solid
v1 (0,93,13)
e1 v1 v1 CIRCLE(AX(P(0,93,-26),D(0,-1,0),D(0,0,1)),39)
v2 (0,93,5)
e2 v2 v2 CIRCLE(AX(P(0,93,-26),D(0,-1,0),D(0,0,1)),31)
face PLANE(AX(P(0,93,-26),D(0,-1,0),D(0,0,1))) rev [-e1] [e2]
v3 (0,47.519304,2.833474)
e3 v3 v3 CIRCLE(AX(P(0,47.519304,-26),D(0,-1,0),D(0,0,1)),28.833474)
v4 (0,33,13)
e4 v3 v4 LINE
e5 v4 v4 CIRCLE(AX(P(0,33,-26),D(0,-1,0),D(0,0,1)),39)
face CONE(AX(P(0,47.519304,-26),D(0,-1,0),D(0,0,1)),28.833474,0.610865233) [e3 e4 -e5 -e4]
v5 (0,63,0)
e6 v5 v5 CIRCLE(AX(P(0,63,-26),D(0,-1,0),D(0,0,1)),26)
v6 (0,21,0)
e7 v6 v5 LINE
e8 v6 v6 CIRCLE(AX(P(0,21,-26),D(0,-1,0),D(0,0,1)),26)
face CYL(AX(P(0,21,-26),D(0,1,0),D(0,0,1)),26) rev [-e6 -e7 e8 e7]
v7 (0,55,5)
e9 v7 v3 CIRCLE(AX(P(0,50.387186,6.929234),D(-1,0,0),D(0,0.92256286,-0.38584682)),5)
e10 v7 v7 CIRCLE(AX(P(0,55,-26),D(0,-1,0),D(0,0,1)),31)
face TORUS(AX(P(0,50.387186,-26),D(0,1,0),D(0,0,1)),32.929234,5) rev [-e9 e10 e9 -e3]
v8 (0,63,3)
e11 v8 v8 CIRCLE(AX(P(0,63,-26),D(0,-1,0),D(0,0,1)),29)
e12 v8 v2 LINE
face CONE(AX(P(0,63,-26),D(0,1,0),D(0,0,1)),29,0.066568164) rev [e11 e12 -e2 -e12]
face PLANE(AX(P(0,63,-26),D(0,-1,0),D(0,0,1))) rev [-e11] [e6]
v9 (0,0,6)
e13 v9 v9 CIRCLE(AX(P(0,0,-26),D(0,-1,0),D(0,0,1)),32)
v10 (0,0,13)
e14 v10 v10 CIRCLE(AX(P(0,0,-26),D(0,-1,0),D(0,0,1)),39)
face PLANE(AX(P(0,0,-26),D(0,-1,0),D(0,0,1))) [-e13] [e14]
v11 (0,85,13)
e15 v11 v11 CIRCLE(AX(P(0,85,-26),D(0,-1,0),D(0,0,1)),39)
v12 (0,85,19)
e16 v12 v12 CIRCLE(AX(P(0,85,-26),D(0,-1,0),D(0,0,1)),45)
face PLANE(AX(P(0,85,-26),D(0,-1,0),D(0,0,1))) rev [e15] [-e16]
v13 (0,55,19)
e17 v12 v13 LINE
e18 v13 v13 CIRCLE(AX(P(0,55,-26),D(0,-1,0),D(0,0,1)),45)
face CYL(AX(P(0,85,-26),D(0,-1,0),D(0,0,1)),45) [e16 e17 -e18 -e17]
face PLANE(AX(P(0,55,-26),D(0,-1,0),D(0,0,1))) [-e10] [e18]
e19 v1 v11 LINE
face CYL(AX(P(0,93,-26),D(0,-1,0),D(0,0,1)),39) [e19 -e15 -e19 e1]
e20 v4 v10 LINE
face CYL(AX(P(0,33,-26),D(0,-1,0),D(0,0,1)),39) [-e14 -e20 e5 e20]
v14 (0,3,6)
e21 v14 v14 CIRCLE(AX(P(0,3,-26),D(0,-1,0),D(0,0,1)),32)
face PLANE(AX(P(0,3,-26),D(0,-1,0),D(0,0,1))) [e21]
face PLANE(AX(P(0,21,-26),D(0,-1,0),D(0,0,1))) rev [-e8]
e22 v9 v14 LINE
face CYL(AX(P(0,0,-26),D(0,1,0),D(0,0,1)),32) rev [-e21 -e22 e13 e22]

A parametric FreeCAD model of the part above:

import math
import FreeCAD as App
import Part
import Sketcher
Q = App.Units.Quantity

doc = App.newDocument("Part")
body = doc.addObject("PartDesign::Body", "Body")

# Sketch on YZ plane
sketch1 = body.newObject("Sketcher::SketchObject", "Sketch")
sketch1.AttachmentSupport = (doc.getObject("YZ_Plane"), [""])
sketch1.MapMode = "FlatFace"
sketch1.addGeometry([
    Part.LineSegment(App.Vector(33, 13, 0), App.Vector(0, 13, 0)),  # 0
    Part.LineSegment(App.Vector(0, 13, 0), App.Vector(0, 6, 0)),  # 1
    Part.LineSegment(App.Vector(0, 6, 0), App.Vector(3, 6, 0)),  # 2
    Part.LineSegment(App.Vector(3, 6, 0), App.Vector(3, -26, 0)),  # 3
    Part.LineSegment(App.Vector(3, -26, 0), App.Vector(21, -26, 0)),  # 4
    Part.LineSegment(App.Vector(21, -26, 0), App.Vector(21, 0, 0)),  # 5
    Part.LineSegment(App.Vector(21, 0, 0), App.Vector(63, 0, 0)),  # 6
    Part.LineSegment(App.Vector(63, 0, 0), App.Vector(63, 3, 0)),  # 7
    Part.LineSegment(App.Vector(63, 3, 0), App.Vector(93, 5, 0)),  # 8
    Part.LineSegment(App.Vector(93, 5, 0), App.Vector(93, 13, 0)),  # 9
    Part.LineSegment(App.Vector(93, 13, 0), App.Vector(85, 13, 0)),  # 10
    Part.LineSegment(App.Vector(85, 13, 0), App.Vector(85, 19, 0)),  # 11
    Part.LineSegment(App.Vector(85, 19, 0), App.Vector(55, 19, 0)),  # 12
    Part.LineSegment(App.Vector(55, 19, 0), App.Vector(55, 5, 0)),  # 13
    Part.ArcOfCircle(Part.Circle(App.Vector(50.4, 6.9, 0), App.Vector(0, 0, 1), 5), math.radians(-125), math.radians(-23)),  # 14
    Part.LineSegment(App.Vector(47.5, 2.8, 0), App.Vector(33, 13, 0)),  # 15
], False)
sketch1.addGeometry(Part.LineSegment(App.Vector(93, -26, 0), App.Vector(0, -26, 0)), True)  # axis
sketch1.addConstraint([
    Sketcher.Constraint("Coincident", 0, 2, 1, 1),
    Sketcher.Constraint("Coincident", 1, 2, 2, 1),
    Sketcher.Constraint("Coincident", 2, 2, 3, 1),
    Sketcher.Constraint("Coincident", 3, 2, 4, 1),
    Sketcher.Constraint("Coincident", 4, 2, 5, 1),
    Sketcher.Constraint("Coincident", 5, 2, 6, 1),
    Sketcher.Constraint("Coincident", 6, 2, 7, 1),
    Sketcher.Constraint("Coincident", 7, 2, 8, 1),
    Sketcher.Constraint("Coincident", 8, 2, 9, 1),
    Sketcher.Constraint("Coincident", 9, 2, 10, 1),
    Sketcher.Constraint("Coincident", 10, 2, 11, 1),
    Sketcher.Constraint("Coincident", 11, 2, 12, 1),
    Sketcher.Constraint("Coincident", 12, 2, 13, 1),
    Sketcher.Constraint("Coincident", 13, 2, 14, 2),
    Sketcher.Constraint("Tangent", 14, 1, 15, 1),
    Sketcher.Constraint("Coincident", 15, 2, 0, 1),
    Sketcher.Constraint("Horizontal", 0),
    Sketcher.Constraint("Vertical", 1),
    Sketcher.Constraint("Horizontal", 2),
    Sketcher.Constraint("Vertical", 3),
    Sketcher.Constraint("Horizontal", 4),
    Sketcher.Constraint("Vertical", 5),
    Sketcher.Constraint("Horizontal", 6),
    Sketcher.Constraint("Vertical", 7),
    Sketcher.Constraint("Vertical", 9),
    Sketcher.Constraint("Horizontal", 10),
    Sketcher.Constraint("Vertical", 11),
    Sketcher.Constraint("Horizontal", 12),
    Sketcher.Constraint("Vertical", 13),
    Sketcher.Constraint("Horizontal", 16),
    Sketcher.Constraint("PointOnObject", 0, 2, -2),
    Sketcher.Constraint("PointOnObject", 5, 2, -1),
    Sketcher.Constraint("PointOnObject", 16, 2, -2),
    Sketcher.Constraint("Horizontal", 0, 2, 9, 2),
    Sketcher.Constraint("Horizontal", 8, 2, 13, 2),
    Sketcher.Constraint("Horizontal", 4, 2, 16, 1),
    Sketcher.Constraint("Vertical", 9, 2, 16, 1),
    Sketcher.Constraint("Equal", 2, 7),
    Sketcher.Constraint("Equal", 10, 9),
    Sketcher.Constraint("Radius", 14, Q("5 mm")),
    Sketcher.Constraint("DistanceX", 0, 2, 0, 1, Q("33 mm")),
    Sketcher.Constraint("DistanceX", 2, 1, 2, 2, Q("3 mm")),
    Sketcher.Constraint("DistanceX", 4, 1, 4, 2, Q("18 mm")),
    Sketcher.Constraint("DistanceX", 6, 1, 6, 2, Q("42 mm")),
    Sketcher.Constraint("DistanceX", 10, 2, 10, 1, Q("8 mm")),
    Sketcher.Constraint("DistanceX", 12, 2, 12, 1, Q("30 mm")),
    Sketcher.Constraint("DistanceX", 16, 2, 16, 1, Q("93 mm")),
    Sketcher.Constraint("DistanceY", 1, 2, 1, 1, Q("7 mm")),
    Sketcher.Constraint("DistanceY", 3, 2, 3, 1, Q("32 mm")),
    Sketcher.Constraint("DistanceY", 5, 1, 5, 2, Q("26 mm")),
    Sketcher.Constraint("DistanceY", 11, 1, 11, 2, Q("6 mm")),
    Sketcher.Constraint("Angle", 15, Q("145 deg")),
])
revolution = body.newObject("PartDesign::Revolution", "Revolution")
revolution.Profile = sketch1
revolution.ReferenceAxis = (sketch1, ["Axis0"])
revolution.Angle = 360

doc.recompute()
